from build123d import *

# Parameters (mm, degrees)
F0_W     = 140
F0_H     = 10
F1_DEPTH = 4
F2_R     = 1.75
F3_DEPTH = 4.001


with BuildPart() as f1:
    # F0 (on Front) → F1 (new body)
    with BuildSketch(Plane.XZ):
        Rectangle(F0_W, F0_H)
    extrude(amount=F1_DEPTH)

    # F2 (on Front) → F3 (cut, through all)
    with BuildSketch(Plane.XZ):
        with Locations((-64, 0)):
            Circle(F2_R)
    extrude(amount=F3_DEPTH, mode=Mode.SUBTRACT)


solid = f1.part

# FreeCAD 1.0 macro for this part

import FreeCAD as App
import Part
import Sketcher
from FreeCAD import Vector
Q = App.Units.Quantity

doc = App.newDocument("Part")
body = doc.addObject("PartDesign::Body", "Body")

# Sketch on XZ plane
sketch1 = body.newObject("Sketcher::SketchObject", "Sketch")
sketch1.AttachmentSupport = (doc.getObject("XZ_Plane"), [""])
sketch1.MapMode = "FlatFace"
sketch1.addGeometry([
    Part.LineSegment(Vector(-70, 5, 0), Vector(-70, -5, 0)),
    Part.LineSegment(Vector(-70, -5, 0), Vector(70, -5, 0)),
    Part.LineSegment(Vector(70, -5, 0), Vector(70, 5, 0)),
    Part.LineSegment(Vector(70, 5, 0), Vector(-70, 5, 0)),
], False)
sketch1.addConstraint([
    Sketcher.Constraint("Coincident", 0, 2, 1, 1),
    Sketcher.Constraint("Coincident", 1, 2, 2, 1),
    Sketcher.Constraint("Coincident", 2, 2, 3, 1),
    Sketcher.Constraint("Coincident", 3, 2, 0, 1),
    Sketcher.Constraint("Vertical", 0),
    Sketcher.Constraint("Horizontal", 1),
    Sketcher.Constraint("Vertical", 2),
    Sketcher.Constraint("Horizontal", 3),
    Sketcher.Constraint("Symmetric", 0, 2, 2, 2, -1, 1),
    Sketcher.Constraint("DistanceX", 1, 1, 1, 2, Q("140 mm")),
    Sketcher.Constraint("DistanceY", 0, 2, 0, 1, Q("10 mm")),
])
pad1 = body.newObject("PartDesign::Pad", "Pad")
pad1.Profile = sketch1
pad1.Length = 4

# Sketch on XZ plane
sketch2 = body.newObject("Sketcher::SketchObject", "Sketch001")
sketch2.AttachmentSupport = (doc.getObject("XZ_Plane"), [""])
sketch2.MapMode = "FlatFace"
sketch2.addGeometry(Part.Circle(Vector(-64, 0, 0), Vector(0, 0, 1), 1.8), False)
sketch2.addConstraint([
    Sketcher.Constraint("PointOnObject", 0, 3, -1),
    Sketcher.Constraint("Diameter", 0, Q("3.5 mm")),
    Sketcher.Constraint("DistanceX", 0, 3, -1, 1, Q("64 mm")),
])
pocket1 = body.newObject("PartDesign::Pocket", "Pocket")
pocket1.Profile = sketch2
pocket1.Type = "ThroughAll"
pocket1.Reversed = True

doc.recompute()
